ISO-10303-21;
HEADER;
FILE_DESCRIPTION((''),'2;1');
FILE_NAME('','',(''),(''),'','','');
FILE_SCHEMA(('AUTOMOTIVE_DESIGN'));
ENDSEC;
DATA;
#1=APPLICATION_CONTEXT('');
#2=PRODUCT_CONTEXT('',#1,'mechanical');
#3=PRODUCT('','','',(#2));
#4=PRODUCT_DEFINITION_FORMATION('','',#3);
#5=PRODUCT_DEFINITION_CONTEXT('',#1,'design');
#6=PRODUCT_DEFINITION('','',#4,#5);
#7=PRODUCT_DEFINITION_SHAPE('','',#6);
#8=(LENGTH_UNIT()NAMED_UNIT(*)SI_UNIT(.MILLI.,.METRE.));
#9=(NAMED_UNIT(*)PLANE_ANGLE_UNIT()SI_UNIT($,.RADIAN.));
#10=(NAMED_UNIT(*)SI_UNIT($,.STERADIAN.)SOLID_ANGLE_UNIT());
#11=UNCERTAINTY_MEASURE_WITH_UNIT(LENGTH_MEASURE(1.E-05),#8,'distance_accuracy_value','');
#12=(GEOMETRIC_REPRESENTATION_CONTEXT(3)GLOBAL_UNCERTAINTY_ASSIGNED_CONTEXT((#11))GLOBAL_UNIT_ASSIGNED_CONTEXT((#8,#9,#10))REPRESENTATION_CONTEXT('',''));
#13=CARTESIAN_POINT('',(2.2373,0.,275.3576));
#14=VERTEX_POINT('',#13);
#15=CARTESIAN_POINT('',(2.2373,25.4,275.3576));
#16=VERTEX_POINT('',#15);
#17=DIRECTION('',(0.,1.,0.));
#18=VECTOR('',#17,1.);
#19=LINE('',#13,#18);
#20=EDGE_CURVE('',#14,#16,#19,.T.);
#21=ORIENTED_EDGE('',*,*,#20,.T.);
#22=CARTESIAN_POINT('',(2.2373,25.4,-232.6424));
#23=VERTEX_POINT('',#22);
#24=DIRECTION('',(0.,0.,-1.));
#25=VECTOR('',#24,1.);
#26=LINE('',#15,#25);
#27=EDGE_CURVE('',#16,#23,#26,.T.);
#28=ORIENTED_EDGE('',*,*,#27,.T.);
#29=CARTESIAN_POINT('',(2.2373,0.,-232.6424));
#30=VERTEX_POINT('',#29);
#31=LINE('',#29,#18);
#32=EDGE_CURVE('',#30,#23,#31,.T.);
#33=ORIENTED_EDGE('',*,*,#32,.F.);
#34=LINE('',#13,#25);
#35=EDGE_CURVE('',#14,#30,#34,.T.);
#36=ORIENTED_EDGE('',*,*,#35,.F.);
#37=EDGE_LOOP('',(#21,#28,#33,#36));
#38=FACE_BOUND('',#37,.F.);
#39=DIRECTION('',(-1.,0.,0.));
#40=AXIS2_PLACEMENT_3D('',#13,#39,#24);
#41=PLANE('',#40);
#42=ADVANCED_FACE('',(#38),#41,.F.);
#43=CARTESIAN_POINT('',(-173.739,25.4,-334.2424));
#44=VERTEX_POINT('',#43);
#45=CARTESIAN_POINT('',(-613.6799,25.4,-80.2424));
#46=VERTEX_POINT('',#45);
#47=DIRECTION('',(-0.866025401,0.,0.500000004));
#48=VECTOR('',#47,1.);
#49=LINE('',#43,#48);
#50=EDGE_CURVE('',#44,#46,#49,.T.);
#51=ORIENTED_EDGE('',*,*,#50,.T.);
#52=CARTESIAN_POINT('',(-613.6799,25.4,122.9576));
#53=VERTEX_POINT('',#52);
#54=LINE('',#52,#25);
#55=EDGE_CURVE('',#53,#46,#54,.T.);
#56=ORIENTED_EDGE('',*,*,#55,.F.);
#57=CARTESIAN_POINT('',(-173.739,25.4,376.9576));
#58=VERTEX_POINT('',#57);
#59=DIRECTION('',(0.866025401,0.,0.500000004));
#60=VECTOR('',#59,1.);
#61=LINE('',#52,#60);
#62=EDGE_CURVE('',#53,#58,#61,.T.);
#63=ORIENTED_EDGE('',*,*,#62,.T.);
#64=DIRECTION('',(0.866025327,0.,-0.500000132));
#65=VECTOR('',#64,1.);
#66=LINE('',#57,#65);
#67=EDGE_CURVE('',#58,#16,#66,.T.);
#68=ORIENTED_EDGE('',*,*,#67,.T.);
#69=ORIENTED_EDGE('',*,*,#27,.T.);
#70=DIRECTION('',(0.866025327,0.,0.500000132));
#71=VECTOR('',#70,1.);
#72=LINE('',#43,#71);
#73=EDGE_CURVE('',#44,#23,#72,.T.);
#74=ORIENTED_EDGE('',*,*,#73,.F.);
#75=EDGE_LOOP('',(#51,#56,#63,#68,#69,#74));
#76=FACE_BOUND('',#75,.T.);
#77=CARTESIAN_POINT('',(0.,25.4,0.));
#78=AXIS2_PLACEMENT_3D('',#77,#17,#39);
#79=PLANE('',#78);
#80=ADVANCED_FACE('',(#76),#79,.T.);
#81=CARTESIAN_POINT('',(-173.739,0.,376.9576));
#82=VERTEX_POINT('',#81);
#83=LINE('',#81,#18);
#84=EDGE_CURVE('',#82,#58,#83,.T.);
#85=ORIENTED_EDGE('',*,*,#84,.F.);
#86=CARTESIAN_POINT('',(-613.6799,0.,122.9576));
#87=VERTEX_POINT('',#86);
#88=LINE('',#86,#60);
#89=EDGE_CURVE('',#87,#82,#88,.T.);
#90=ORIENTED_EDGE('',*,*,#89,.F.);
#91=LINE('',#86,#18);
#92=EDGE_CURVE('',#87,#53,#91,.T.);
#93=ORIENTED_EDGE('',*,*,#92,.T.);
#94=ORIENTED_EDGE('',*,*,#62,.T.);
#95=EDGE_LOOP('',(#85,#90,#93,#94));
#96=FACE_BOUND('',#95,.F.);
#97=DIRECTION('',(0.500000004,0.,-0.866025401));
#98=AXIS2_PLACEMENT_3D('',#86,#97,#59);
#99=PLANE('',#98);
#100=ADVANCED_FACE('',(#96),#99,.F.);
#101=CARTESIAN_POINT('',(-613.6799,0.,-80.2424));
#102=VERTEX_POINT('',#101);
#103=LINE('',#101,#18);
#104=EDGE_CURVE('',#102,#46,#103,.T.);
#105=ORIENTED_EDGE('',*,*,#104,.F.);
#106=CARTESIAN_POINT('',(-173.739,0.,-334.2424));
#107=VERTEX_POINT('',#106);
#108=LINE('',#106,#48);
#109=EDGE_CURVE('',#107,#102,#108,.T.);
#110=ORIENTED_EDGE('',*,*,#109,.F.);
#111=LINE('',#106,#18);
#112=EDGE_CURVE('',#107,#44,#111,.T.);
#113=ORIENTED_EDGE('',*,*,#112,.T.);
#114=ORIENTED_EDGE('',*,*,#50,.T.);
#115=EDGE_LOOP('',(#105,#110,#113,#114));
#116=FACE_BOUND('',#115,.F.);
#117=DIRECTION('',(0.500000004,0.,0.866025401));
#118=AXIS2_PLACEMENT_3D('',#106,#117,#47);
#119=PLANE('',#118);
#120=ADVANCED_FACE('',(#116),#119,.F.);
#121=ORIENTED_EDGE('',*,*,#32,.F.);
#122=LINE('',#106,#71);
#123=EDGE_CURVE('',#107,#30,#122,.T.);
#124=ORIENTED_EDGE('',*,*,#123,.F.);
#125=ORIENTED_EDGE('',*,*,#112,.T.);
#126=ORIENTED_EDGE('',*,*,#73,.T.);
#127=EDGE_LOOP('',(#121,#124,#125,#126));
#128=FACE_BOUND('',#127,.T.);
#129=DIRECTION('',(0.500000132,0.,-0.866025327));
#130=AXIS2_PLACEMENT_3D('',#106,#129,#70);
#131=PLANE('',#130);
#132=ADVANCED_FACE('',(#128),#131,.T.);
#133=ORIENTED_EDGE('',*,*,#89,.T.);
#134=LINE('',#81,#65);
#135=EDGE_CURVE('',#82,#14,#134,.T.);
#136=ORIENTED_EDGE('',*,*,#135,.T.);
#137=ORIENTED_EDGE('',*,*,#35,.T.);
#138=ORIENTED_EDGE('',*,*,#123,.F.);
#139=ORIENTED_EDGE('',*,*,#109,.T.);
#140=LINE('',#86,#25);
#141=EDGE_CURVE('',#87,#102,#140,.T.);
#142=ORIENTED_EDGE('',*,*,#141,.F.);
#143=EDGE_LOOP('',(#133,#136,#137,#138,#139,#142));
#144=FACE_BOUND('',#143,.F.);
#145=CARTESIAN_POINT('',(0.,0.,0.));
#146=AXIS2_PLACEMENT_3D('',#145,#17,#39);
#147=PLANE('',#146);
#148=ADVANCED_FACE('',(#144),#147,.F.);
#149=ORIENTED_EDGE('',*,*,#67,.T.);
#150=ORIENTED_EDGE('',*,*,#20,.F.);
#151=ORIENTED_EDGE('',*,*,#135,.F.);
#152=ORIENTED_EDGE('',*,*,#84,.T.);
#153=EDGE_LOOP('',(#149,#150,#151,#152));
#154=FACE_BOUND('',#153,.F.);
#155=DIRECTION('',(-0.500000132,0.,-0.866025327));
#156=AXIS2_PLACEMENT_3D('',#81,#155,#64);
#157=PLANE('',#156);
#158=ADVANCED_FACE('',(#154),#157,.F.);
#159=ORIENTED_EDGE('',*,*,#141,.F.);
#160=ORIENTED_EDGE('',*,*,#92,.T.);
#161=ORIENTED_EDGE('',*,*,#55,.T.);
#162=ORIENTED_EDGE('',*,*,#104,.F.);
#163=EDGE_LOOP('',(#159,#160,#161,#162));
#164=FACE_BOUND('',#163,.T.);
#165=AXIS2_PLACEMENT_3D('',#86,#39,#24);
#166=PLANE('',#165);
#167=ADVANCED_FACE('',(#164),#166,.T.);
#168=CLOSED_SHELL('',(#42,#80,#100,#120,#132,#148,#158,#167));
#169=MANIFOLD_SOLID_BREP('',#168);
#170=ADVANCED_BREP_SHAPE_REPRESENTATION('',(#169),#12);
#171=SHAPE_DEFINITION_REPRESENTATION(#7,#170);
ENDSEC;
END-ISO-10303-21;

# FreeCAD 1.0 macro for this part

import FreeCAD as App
import Part
import Sketcher
from FreeCAD import Vector
Q = App.Units.Quantity


def add_polygon(sketch, points):
    """Adds a closed chain of lines whose ends are joined by coincident constraints."""
    first, n = sketch.GeometryCount, len(points)
    for a, b in zip(points, points[1:] + points[:1]):
        sketch.addGeometry(Part.LineSegment(App.Vector(*a, 0), App.Vector(*b, 0)), False)
    for i in range(n):
        sketch.addConstraint(Sketcher.Constraint("Coincident", first + i, 2, first + (i + 1) % n, 1))

doc = App.newDocument("Part")
body = doc.addObject("PartDesign::Body", "Body")

# Sketch on XZ plane
sketch1 = body.newObject("Sketcher::SketchObject", "Sketch")
sketch1.AttachmentSupport = (doc.getObject("XZ_Plane"), [""])
sketch1.MapMode = "FlatFace"
add_polygon(sketch1, [(-614, -80), (-614, 123), (-174, 377), (2, 275), (2, -233), (-174, -334)])  # lines 0-5
sketch1.addConstraint([
    Sketcher.Constraint("Vertical", 0),
    Sketcher.Constraint("Vertical", 3),
    Sketcher.Constraint("Parallel", 1, 4),
    Sketcher.Constraint("Parallel", 2, 5),
    Sketcher.Constraint("Vertical", 1, 2, 4, 2),
    Sketcher.Constraint("Equal", 2, 4),
    Sketcher.Constraint("DistanceY", 0, 1, 0, 2, Q("8 in")),
    Sketcher.Constraint("DistanceY", 3, 2, 3, 1, Q("20 in")),
    Sketcher.Constraint("Distance", 1, Q("20 in")),
    Sketcher.Constraint("Distance", 2, Q("8 in")),
    Sketcher.Constraint("DistanceX", 0, 2, -1, 1, 613.68),
    Sketcher.Constraint("DistanceY", -1, 1, 0, 2, 122.9576),
])
pad1 = body.newObject("PartDesign::Pad", "Pad")
pad1.Profile = sketch1
pad1.Length = Q("1 in")
pad1.Reversed = True

doc.recompute()
